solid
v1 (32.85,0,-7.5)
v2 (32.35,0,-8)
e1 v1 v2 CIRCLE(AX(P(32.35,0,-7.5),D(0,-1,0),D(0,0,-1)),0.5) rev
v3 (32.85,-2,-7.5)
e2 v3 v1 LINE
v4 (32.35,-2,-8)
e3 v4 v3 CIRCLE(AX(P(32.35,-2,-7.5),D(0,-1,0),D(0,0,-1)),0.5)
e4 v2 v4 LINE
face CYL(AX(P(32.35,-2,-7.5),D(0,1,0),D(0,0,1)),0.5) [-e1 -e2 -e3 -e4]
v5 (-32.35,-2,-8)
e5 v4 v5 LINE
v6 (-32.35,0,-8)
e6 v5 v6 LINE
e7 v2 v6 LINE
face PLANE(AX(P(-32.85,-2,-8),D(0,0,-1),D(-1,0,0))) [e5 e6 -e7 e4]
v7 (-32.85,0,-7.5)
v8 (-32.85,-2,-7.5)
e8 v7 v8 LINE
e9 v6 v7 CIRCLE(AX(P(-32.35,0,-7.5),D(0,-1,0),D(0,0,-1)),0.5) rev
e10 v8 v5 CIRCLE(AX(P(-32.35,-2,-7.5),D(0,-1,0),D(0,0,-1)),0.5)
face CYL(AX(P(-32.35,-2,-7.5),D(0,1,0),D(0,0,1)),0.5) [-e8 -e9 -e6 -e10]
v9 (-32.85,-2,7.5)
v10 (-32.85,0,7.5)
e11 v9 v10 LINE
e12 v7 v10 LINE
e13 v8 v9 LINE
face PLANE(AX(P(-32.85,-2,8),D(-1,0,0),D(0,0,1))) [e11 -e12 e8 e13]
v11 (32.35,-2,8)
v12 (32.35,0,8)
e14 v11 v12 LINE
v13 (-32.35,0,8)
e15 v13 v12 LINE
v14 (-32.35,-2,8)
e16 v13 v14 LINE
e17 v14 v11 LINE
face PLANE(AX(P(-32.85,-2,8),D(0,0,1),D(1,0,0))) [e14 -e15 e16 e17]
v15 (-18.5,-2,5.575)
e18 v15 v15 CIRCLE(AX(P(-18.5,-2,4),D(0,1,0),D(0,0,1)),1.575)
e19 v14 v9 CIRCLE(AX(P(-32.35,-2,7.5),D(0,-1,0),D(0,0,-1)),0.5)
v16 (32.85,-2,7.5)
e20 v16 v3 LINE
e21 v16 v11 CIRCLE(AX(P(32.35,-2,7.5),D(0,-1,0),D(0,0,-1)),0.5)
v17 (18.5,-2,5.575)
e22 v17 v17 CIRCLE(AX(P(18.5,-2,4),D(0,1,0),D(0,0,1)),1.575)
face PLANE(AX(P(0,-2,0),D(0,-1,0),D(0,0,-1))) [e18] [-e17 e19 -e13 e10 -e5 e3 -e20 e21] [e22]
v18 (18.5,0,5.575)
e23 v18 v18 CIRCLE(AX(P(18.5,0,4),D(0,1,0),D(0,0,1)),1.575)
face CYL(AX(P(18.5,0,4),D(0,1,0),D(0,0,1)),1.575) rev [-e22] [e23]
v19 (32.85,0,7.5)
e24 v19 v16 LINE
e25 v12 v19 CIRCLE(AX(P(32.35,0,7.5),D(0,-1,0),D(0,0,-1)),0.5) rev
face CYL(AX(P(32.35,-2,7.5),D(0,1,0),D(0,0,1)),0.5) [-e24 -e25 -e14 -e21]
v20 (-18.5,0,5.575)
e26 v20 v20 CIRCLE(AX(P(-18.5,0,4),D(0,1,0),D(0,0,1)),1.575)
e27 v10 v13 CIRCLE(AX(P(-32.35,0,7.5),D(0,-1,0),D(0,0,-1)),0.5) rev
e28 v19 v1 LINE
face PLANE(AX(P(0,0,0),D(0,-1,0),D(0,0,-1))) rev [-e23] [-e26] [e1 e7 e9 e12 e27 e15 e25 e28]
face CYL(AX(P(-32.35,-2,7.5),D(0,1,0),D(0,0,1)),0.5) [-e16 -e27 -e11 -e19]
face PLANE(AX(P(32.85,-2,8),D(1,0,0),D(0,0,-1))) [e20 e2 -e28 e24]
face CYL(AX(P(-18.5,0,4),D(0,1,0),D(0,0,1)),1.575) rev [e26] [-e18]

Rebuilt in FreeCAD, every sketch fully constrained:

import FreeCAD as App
import Part
import Sketcher
Q = App.Units.Quantity


def edges_at(feature, points):
    """Names of the edges that pass closest to the given points."""
    edges = feature.Shape.Edges
    near = lambda p: min(range(len(edges)), key=lambda i: edges[i].distToShape(Part.Vertex(*p))[0])
    return sorted({f"Edge{near(p) + 1}" for p in points})


def add_polygon(sketch, points):
    """Adds a closed chain of lines whose ends are joined by coincident constraints."""
    first, n = sketch.GeometryCount, len(points)
    for a, b in zip(points, points[1:] + points[:1]):
        sketch.addGeometry(Part.LineSegment(App.Vector(*a, 0), App.Vector(*b, 0)), False)
    for i in range(n):
        sketch.addConstraint(Sketcher.Constraint("Coincident", first + i, 2, first + (i + 1) % n, 1))

doc = App.newDocument("Part")
body = doc.addObject("PartDesign::Body", "Body")

sketch1 = body.newObject("Sketcher::SketchObject", "Sketch")
sketch1.AttachmentSupport = (doc.getObject("XZ_Plane"), [""])
sketch1.MapMode = "FlatFace"
add_polygon(sketch1, [(-33, -8), (-33, 8), (33, 8), (33, -8)])
sketch1.addConstraint([
    Sketcher.Constraint("Vertical", 0),
    Sketcher.Constraint("Horizontal", 1),
    Sketcher.Constraint("Vertical", 2),
    Sketcher.Constraint("Horizontal", 3),
    Sketcher.Constraint("Symmetric", 0, 2, 2, 2, -1, 1),
    Sketcher.Constraint("DistanceY", 0, 1, 0, 2, Q("16 mm")),
    Sketcher.Constraint("DistanceX", 1, 1, 1, 2, Q("65.7 mm")),
])
pad1 = body.newObject("PartDesign::Pad", "Pad")
pad1.Profile = sketch1
pad1.Length = 2
doc.recompute()

fillet = body.newObject("PartDesign::Fillet", "Fillet")
fillet.Base = (pad1, edges_at(pad1, [
    (32.85, -1, 8),
    (-32.85, -1, 8),
    (-32.85, -1, -8),
    (32.85, -1, -8),
]))
fillet.Radius = 0.5

sketch2 = body.newObject("Sketcher::SketchObject", "Sketch001")
sketch2.AttachmentSupport = (doc.getObject("XZ_Plane"), [""])
sketch2.MapMode = "FlatFace"
sketch2.addGeometry([
    Part.Circle(App.Vector(18.5, 4, 0), App.Vector(0, 0, 1), 1.6),
    Part.Circle(App.Vector(-18.5, 4, 0), App.Vector(0, 0, 1), 1.6),
], False)
sketch2.addConstraint([
    Sketcher.Constraint("Equal", 0, 1),
    Sketcher.Constraint("Symmetric", 0, 3, 1, 3, -2),
    Sketcher.Constraint("Diameter", 0, Q("3.15 mm")),
    Sketcher.Constraint("DistanceY", -1, 1, 0, 3, Q("4 mm")),
    Sketcher.Constraint("DistanceX", 1, 3, 0, 3, Q("37 mm")),
])
doc.recompute()
hole = body.newObject("PartDesign::Hole", "Hole")
hole.Profile = sketch2
hole.ThreadType = "None"
hole.Diameter = 3.15
hole.DepthType = "ThroughAll"
hole.Reversed = True

doc.recompute()
